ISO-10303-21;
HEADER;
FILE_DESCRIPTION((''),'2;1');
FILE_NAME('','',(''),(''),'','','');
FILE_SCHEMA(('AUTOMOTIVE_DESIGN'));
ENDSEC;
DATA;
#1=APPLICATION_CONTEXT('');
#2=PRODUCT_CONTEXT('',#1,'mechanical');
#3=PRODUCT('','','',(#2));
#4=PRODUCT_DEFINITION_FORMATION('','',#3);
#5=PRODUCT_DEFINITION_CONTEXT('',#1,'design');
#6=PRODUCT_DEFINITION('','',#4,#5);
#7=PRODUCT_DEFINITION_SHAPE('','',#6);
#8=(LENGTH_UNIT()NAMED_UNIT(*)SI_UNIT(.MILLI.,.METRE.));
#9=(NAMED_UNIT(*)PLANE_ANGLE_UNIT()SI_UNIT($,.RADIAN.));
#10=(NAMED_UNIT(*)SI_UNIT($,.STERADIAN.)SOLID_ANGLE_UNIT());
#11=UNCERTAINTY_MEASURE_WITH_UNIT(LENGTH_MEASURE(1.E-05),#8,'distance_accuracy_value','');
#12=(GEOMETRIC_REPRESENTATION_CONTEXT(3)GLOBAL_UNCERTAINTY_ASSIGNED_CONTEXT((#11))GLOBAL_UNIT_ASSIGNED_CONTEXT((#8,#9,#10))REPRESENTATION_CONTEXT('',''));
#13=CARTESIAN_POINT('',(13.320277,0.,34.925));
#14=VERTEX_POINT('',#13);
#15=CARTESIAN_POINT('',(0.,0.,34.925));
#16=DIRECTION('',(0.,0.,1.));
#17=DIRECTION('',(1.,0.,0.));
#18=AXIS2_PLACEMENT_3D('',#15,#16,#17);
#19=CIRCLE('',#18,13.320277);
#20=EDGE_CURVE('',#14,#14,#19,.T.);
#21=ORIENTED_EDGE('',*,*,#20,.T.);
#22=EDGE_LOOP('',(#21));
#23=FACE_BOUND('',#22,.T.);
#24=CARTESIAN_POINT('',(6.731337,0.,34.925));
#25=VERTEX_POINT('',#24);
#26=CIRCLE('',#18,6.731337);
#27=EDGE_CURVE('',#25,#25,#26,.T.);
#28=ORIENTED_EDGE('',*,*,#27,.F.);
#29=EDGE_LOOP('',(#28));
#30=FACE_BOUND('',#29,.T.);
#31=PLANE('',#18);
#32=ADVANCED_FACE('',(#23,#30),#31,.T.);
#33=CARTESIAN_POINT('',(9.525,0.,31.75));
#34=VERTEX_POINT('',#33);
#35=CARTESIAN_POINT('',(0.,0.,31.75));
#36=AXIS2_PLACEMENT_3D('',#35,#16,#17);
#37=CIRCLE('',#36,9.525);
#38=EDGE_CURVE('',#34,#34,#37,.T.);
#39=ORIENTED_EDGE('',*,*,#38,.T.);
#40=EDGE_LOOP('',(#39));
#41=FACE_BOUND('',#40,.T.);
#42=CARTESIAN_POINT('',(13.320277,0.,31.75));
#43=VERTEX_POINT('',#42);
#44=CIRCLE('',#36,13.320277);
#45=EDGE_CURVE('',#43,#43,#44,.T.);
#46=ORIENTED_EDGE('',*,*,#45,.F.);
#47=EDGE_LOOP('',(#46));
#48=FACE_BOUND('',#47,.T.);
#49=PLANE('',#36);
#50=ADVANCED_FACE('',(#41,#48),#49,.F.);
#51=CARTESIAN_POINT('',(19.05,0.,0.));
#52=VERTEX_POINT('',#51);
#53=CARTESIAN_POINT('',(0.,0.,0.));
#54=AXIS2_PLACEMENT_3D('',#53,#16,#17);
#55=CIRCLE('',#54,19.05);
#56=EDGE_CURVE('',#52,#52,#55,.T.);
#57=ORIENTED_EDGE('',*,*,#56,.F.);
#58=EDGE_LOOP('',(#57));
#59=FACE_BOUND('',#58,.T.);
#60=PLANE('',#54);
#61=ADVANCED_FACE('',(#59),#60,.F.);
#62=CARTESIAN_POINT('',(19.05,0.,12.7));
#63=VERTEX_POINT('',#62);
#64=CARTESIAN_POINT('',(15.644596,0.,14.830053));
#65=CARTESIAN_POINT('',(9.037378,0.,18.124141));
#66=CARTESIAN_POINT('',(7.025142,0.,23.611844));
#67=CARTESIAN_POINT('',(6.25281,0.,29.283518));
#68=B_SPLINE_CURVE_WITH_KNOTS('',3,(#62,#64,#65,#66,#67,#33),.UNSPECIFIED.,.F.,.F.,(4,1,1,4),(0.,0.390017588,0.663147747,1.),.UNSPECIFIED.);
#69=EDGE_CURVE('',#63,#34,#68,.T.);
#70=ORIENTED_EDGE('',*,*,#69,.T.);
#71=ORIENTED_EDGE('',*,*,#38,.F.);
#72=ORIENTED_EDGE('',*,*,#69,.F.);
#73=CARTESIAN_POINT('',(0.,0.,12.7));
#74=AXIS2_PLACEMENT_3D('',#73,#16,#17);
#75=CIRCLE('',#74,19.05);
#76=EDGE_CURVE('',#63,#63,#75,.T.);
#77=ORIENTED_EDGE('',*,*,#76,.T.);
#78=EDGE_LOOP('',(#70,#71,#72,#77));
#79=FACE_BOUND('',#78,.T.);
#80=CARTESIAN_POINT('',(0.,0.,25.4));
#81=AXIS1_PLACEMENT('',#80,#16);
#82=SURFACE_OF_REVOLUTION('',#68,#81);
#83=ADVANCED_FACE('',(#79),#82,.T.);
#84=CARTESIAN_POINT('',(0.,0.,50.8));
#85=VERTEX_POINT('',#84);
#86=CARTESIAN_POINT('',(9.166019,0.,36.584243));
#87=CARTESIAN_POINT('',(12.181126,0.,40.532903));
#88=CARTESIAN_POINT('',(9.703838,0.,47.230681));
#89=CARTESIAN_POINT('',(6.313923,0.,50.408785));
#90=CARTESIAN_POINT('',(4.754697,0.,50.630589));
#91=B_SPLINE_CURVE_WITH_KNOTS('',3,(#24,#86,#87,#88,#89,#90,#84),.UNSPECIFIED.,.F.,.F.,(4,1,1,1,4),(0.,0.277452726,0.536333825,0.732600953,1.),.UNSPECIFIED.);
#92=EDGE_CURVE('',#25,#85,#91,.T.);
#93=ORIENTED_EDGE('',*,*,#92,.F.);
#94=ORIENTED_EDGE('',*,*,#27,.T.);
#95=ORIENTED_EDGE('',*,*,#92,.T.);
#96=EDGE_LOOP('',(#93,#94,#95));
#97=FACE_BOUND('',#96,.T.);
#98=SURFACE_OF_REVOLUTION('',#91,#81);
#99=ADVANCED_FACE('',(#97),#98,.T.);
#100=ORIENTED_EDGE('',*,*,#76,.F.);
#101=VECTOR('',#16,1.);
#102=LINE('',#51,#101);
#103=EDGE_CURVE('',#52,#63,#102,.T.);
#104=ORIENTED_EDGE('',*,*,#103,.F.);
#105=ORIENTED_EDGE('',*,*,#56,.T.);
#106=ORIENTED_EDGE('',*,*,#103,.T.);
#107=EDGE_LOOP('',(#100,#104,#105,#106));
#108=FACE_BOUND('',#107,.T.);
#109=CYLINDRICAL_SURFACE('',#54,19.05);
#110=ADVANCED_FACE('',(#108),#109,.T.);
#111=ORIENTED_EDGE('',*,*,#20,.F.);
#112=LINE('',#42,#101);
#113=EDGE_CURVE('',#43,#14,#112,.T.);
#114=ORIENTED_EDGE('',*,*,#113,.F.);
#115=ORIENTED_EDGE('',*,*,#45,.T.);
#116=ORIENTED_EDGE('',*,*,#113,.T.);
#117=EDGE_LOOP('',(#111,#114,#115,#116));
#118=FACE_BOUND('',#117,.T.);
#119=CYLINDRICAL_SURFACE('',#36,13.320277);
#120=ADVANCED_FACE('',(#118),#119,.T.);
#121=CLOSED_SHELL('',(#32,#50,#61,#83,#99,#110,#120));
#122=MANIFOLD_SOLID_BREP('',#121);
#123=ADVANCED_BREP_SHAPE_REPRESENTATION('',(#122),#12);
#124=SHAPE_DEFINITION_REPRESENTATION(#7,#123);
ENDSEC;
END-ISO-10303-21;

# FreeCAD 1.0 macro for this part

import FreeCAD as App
import Part
import Sketcher
from FreeCAD import Vector
Q = App.Units.Quantity

doc = App.newDocument("Part")
params = doc.addObject("Spreadsheet::Sheet", "Params")
for row, (alias, value) in enumerate([
    ("revolution_angle", "360 deg"),
], start=1):
    params.set(f"A{row}", alias)
    params.set(f"B{row}", "=" + value)
    params.setAlias(f"B{row}", alias)

body = doc.addObject("PartDesign::Body", "Body")

# Sketch on XZ plane
sketch1 = doc.addObject("Sketcher::SketchObject", "Sketch")
body.addObject(sketch1)
sketch1.AttachmentSupport = (doc.XZ_Plane, [""])
sketch1.MapMode = "FlatFace"
sketch1.addGeometry([
    Part.LineSegment(Vector(0, 50.8, 0), Vector(0, 0, 0)),  # 0
    Part.LineSegment(Vector(0, 0, 0), Vector(19.05, 0, 0)),  # 1
    Part.LineSegment(Vector(19.05, 0, 0), Vector(19.05, 12.7, 0)),  # 2
    Part.BSplineCurve([Vector(19.05, 12.7, 0), Vector(15.644596, 14.830053, 0), Vector(9.037378, 18.124141, 0), Vector(7.025142, 23.611844, 0), Vector(6.25281, 29.283518, 0), Vector(9.525, 31.75, 0)], [4, 1, 1, 4], [0, 0.390017588, 0.663147747, 1], False, 3, [1, 1, 1, 1, 1, 1], False),  # 3
    Part.LineSegment(Vector(9.525, 31.75, 0), Vector(13.320277, 31.75, 0)),  # 4
    Part.LineSegment(Vector(13.320277, 31.75, 0), Vector(13.320277, 34.925, 0)),  # 5
    Part.LineSegment(Vector(13.320277, 34.925, 0), Vector(6.731337, 34.925, 0)),  # 6
    Part.BSplineCurve([Vector(6.731337, 34.925, 0), Vector(9.166019, 36.584243, 0), Vector(12.181126, 40.532903, 0), Vector(9.703838, 47.230681, 0), Vector(6.313923, 50.408785, 0), Vector(4.754697, 50.630589, 0), Vector(0, 50.8, 0)], [4, 1, 1, 1, 4], [0, 0.277452726, 0.536333825, 0.732600953, 1], False, 3, [1, 1, 1, 1, 1, 1, 1], False),  # 7
], False)
sketch1.addConstraint([
    Sketcher.Constraint("Block", 3),
    Sketcher.Constraint("Block", 7),
    Sketcher.Constraint("Coincident", 0, 2, 1, 1),
    Sketcher.Constraint("Coincident", 1, 2, 2, 1),
    Sketcher.Constraint("Coincident", 2, 2, 3, 1),
    Sketcher.Constraint("Coincident", 3, 2, 4, 1),
    Sketcher.Constraint("Coincident", 4, 2, 5, 1),
    Sketcher.Constraint("Coincident", 5, 2, 6, 1),
    Sketcher.Constraint("Coincident", 6, 2, 7, 1),
    Sketcher.Constraint("Coincident", 7, 2, 0, 1),
    Sketcher.Constraint("Vertical", 0),
    Sketcher.Constraint("Horizontal", 1),
    Sketcher.Constraint("Vertical", 2),
    Sketcher.Constraint("Horizontal", 4),
    Sketcher.Constraint("Vertical", 5),
    Sketcher.Constraint("Horizontal", 6),
    Sketcher.Constraint("PointOnObject", 1, 2, -1),
    Sketcher.Constraint("DistanceX", 6, 2, 6, 1, Q("6.58894 mm")),
])
revolution = doc.addObject("PartDesign::Revolution", "Revolution")
body.addObject(revolution)
revolution.Profile = sketch1
revolution.ReferenceAxis = (sketch1, ["V_Axis"])
revolution.setExpression("Angle", "Params.revolution_angle")

doc.recompute()
